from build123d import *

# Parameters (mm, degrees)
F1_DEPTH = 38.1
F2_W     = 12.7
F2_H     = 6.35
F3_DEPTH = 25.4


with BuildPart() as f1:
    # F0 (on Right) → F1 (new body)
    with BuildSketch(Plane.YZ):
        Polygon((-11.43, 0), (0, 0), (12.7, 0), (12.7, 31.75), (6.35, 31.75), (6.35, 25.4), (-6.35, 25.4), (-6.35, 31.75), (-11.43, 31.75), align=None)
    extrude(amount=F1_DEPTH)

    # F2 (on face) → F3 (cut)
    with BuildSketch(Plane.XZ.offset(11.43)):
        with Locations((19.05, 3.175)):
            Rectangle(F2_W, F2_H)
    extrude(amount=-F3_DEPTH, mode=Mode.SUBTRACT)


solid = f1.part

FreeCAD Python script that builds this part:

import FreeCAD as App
import Part
import Sketcher
from FreeCAD import Vector
Q = App.Units.Quantity


def add_polygon(sketch, points):
    """Adds a closed chain of lines whose ends are joined by coincident constraints."""
    first, n = sketch.GeometryCount, len(points)
    for a, b in zip(points, points[1:] + points[:1]):
        sketch.addGeometry(Part.LineSegment(App.Vector(*a, 0), App.Vector(*b, 0)), False)
    for i in range(n):
        sketch.addConstraint(Sketcher.Constraint("Coincident", first + i, 2, first + (i + 1) % n, 1))

doc = App.newDocument("Part")
body = doc.addObject("PartDesign::Body", "Body")

# Sketch on YZ plane
sketch1 = doc.addObject("Sketcher::SketchObject", "Sketch")
body.addObject(sketch1)
sketch1.AttachmentSupport = (doc.YZ_Plane, [""])
sketch1.MapMode = "FlatFace"
add_polygon(sketch1, [(-11, 0), (13, 0), (13, 32), (6, 32), (6, 25), (-6, 25), (-6, 32), (-11, 32)])  # lines 0-7
sketch1.addConstraint(Sketcher.Constraint("Horizontal", 0))
sketch1.addConstraint(Sketcher.Constraint("Vertical", 1))
sketch1.addConstraint(Sketcher.Constraint("Horizontal", 2))
sketch1.addConstraint(Sketcher.Constraint("Vertical", 3))
sketch1.addConstraint(Sketcher.Constraint("Horizontal", 4))
sketch1.addConstraint(Sketcher.Constraint("Vertical", 5))
sketch1.addConstraint(Sketcher.Constraint("Horizontal", 6))
sketch1.addConstraint(Sketcher.Constraint("Vertical", 7))
sketch1.addConstraint(Sketcher.Constraint("Symmetric", 2, 2, 5, 2, -2))
sketch1.addConstraint(Sketcher.Constraint("PointOnObject", 0, 2, -1))
sketch1.addConstraint(Sketcher.Constraint("Equal", 2, 3))
sketch1.addConstraint(Sketcher.Constraint("DistanceX", 4, 2, 4, 1, Q("0.5 in")))
sketch1.addConstraint(Sketcher.Constraint("DistanceX", 6, 2, 6, 1, Q("0.2 in")))
sketch1.addConstraint(Sketcher.Constraint("DistanceY", -1, 1, 3, 2, Q("1 in")))
sketch1.addConstraint(Sketcher.Constraint("DistanceX", 0, 1, 0, 2, Q("0.95 in")))
pad1 = doc.addObject("PartDesign::Pad", "Pad")
body.addObject(pad1)
pad1.Profile = sketch1
pad1.Length = Q("1.5 in")

# Sketch on XZ plane
sketch2 = doc.addObject("Sketcher::SketchObject", "Sketch001")
body.addObject(sketch2)
sketch2.AttachmentSupport = (doc.XZ_Plane, [""])
sketch2.MapMode = "FlatFace"
sketch2.AttachmentOffset = App.Placement(Vector(0, 0, 0.45 * 25.4), App.Rotation())
add_polygon(sketch2, [(13, 6), (13, 0), (25, 0), (25, 6)])  # lines 0-3
sketch2.addConstraint(Sketcher.Constraint("Vertical", 0))
sketch2.addConstraint(Sketcher.Constraint("Horizontal", 1))
sketch2.addConstraint(Sketcher.Constraint("Vertical", 2))
sketch2.addConstraint(Sketcher.Constraint("Horizontal", 3))
sketch2.addConstraint(Sketcher.Constraint("PointOnObject", 0, 2, -1))
sketch2.addConstraint(Sketcher.Constraint("DistanceX", 1, 1, 1, 2, Q("0.5 in")))
sketch2.addConstraint(Sketcher.Constraint("DistanceX", -1, 1, 1, 2, Q("1 in")))
sketch2.addConstraint(Sketcher.Constraint("DistanceY", 0, 2, 0, 1, Q("0.25 in")))
pocket1 = doc.addObject("PartDesign::Pocket", "Pocket")
body.addObject(pocket1)
pocket1.Profile = sketch2
pocket1.Length = Q("1 in")

doc.recompute()
